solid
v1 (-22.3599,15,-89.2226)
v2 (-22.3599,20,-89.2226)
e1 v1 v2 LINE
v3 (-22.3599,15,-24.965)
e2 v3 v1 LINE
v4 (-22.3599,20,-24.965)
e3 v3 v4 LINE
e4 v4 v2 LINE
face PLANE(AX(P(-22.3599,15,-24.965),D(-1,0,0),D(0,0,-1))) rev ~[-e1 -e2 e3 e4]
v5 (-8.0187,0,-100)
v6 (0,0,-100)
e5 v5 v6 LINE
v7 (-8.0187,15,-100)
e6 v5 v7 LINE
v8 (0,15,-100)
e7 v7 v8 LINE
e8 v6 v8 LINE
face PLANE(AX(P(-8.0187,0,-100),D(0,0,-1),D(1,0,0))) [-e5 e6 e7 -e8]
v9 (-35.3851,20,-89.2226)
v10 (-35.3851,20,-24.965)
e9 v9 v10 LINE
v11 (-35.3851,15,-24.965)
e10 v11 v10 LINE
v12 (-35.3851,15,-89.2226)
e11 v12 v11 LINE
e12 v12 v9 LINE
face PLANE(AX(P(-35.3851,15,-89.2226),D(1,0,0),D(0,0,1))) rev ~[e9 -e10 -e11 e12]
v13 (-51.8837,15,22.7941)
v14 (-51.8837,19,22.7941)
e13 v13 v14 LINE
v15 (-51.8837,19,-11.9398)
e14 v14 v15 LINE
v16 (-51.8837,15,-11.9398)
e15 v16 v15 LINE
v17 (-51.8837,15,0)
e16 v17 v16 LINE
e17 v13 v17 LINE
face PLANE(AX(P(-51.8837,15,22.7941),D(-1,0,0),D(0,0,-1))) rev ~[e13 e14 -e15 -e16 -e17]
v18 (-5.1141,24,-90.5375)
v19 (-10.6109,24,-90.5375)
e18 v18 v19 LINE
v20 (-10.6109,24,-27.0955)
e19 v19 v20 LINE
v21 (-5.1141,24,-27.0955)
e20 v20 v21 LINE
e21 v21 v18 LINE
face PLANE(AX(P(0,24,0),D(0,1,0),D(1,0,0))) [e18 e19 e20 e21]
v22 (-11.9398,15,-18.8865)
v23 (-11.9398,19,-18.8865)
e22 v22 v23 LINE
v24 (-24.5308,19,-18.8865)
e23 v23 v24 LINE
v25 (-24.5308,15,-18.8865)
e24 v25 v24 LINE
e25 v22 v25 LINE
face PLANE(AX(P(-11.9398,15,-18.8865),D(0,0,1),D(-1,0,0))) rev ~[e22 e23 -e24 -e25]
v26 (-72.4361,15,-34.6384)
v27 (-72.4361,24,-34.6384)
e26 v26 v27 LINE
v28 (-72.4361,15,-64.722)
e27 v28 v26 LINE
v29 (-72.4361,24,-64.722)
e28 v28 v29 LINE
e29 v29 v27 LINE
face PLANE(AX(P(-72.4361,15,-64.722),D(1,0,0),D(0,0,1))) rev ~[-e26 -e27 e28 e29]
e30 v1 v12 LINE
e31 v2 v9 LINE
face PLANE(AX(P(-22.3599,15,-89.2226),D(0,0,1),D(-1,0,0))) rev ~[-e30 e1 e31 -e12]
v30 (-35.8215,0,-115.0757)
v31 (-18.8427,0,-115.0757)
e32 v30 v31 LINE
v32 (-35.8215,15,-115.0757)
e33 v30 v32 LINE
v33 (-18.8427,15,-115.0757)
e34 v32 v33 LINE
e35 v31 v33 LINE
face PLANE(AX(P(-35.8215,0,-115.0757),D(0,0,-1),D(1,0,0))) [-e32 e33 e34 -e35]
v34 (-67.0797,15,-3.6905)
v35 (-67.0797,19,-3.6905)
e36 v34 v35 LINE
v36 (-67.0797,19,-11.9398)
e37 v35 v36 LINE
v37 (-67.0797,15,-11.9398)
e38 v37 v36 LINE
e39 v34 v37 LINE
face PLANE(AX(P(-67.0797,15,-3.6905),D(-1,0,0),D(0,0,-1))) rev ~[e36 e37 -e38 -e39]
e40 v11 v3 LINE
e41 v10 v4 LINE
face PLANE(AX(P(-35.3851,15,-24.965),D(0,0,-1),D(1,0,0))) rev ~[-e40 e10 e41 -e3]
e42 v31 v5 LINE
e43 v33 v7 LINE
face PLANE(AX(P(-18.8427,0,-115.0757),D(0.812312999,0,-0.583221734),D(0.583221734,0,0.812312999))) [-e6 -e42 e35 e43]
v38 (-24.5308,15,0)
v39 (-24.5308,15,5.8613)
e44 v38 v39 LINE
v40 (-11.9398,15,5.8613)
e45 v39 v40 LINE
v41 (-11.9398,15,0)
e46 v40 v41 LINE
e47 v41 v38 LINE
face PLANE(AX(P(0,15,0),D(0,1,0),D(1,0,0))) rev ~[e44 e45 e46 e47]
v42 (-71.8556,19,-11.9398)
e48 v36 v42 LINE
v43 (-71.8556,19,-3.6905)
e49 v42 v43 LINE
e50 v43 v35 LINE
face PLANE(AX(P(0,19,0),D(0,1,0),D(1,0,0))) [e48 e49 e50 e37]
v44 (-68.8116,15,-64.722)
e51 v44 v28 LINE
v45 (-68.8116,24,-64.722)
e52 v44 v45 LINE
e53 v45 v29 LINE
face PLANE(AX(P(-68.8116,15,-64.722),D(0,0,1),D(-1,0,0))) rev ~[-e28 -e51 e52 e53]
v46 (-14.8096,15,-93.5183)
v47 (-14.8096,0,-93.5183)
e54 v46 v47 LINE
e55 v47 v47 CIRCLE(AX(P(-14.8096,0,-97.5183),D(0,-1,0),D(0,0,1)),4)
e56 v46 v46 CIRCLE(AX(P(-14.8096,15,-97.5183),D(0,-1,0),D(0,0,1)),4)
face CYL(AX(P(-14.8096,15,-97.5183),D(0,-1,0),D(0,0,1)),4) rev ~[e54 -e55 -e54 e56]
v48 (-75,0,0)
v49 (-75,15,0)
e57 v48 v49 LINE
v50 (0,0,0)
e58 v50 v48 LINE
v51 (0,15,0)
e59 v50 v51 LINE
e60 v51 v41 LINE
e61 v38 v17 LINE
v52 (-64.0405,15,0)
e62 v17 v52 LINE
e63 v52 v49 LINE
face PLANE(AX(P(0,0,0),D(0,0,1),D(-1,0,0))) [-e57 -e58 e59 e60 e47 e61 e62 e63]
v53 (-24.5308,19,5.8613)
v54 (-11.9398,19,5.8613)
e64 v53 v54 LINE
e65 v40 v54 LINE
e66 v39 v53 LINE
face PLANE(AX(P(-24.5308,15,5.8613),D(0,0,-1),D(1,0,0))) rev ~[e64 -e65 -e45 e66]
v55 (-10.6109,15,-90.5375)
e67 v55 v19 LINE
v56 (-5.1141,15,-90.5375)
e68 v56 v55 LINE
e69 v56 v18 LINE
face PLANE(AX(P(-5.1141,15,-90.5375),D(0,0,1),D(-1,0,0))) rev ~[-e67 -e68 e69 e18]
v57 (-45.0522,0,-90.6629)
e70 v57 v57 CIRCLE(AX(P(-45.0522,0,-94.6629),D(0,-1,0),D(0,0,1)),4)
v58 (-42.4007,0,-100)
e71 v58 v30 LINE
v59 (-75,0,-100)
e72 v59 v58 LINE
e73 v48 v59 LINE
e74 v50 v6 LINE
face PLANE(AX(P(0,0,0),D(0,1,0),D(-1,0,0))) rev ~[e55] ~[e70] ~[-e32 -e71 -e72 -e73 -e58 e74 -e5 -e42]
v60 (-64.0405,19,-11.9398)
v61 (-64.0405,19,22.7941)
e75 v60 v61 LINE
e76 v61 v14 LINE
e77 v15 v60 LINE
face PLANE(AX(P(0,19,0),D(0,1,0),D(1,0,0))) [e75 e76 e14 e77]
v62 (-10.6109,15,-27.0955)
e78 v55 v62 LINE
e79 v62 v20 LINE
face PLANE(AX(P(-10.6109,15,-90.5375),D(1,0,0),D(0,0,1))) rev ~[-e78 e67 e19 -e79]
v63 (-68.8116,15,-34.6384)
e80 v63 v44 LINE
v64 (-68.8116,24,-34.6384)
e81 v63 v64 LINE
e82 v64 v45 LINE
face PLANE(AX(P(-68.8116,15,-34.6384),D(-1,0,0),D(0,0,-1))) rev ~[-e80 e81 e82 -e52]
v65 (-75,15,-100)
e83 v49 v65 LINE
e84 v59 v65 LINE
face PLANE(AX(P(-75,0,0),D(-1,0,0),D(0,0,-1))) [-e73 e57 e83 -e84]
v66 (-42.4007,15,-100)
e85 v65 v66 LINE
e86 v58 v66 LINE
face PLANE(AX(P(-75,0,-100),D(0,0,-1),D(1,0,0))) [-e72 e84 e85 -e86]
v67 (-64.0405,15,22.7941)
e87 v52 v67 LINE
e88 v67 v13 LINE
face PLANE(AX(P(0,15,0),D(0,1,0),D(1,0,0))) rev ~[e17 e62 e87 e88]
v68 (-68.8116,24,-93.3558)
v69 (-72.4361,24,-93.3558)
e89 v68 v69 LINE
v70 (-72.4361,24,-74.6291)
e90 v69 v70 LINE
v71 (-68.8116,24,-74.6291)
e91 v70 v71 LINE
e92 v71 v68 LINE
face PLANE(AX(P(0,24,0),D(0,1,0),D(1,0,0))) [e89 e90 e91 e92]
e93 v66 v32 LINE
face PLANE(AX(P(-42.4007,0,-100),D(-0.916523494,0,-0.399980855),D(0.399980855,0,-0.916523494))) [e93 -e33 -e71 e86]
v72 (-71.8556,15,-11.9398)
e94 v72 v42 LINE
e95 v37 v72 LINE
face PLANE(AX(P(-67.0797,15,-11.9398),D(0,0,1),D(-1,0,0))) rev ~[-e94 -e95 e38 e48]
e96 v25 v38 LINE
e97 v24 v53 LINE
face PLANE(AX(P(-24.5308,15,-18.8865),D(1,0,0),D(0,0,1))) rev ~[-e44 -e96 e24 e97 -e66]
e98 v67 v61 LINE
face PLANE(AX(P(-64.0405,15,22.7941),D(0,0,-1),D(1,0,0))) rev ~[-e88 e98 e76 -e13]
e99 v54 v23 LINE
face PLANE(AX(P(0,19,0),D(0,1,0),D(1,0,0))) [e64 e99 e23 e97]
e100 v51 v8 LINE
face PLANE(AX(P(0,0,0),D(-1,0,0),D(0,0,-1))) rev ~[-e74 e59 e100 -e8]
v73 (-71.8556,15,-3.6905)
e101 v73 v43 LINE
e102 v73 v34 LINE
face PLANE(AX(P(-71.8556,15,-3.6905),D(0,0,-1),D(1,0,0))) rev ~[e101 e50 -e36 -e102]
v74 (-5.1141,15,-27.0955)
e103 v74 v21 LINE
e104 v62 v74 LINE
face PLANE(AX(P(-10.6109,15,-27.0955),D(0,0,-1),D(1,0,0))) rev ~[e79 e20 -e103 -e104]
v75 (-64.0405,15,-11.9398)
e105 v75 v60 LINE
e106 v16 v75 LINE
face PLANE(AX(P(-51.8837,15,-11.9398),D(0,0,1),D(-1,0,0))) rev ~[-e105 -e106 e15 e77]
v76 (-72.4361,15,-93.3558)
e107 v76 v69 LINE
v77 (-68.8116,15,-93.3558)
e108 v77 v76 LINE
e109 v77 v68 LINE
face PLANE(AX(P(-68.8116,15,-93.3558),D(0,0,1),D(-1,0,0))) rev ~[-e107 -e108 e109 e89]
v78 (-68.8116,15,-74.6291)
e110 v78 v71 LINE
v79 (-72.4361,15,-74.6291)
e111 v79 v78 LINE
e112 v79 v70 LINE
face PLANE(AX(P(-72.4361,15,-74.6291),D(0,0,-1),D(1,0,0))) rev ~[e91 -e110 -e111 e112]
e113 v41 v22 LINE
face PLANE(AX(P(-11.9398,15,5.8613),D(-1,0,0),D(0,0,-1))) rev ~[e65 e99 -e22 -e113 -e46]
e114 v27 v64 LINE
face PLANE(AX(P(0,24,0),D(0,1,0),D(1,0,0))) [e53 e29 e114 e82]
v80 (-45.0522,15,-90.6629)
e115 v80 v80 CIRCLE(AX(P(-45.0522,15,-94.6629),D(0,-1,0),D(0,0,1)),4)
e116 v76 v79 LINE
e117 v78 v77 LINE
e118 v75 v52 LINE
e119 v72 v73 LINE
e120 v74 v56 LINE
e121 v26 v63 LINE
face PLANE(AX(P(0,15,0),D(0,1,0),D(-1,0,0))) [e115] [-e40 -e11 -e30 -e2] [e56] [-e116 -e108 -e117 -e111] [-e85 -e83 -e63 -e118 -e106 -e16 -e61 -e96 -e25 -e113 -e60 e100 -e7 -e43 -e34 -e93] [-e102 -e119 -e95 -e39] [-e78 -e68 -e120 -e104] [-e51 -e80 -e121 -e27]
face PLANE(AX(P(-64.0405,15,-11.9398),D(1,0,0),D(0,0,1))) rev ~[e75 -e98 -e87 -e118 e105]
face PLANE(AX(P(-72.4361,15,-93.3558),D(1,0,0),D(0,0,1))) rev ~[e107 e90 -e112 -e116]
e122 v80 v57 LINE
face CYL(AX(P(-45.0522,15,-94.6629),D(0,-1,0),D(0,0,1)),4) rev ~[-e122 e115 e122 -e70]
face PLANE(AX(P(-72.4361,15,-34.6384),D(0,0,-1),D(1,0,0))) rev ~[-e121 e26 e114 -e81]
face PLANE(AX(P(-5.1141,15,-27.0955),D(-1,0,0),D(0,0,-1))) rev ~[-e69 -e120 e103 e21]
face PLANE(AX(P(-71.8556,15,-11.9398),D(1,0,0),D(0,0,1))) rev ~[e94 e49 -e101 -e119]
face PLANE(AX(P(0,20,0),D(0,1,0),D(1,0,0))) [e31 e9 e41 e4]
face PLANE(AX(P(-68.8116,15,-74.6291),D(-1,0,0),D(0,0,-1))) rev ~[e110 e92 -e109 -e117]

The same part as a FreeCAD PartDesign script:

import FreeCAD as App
import Part
import Sketcher
from FreeCAD import Vector
Q = App.Units.Quantity


def add_polygon(sketch, points):
    """Adds a closed chain of lines whose ends are joined by coincident constraints."""
    first, n = sketch.GeometryCount, len(points)
    for a, b in zip(points, points[1:] + points[:1]):
        sketch.addGeometry(Part.LineSegment(App.Vector(*a, 0), App.Vector(*b, 0)), False)
    for i in range(n):
        sketch.addConstraint(Sketcher.Constraint("Coincident", first + i, 2, first + (i + 1) % n, 1))

doc = App.newDocument("Part")
body = doc.addObject("PartDesign::Body", "Body")

# Sketch on XZ plane
sketch1 = body.newObject("Sketcher::SketchObject", "Sketch")
sketch1.AttachmentSupport = (doc.getObject("XZ_Plane"), [""])
sketch1.MapMode = "FlatFace"
add_polygon(sketch1, [(-75, 0), (0, 0), (0, -100), (-8, -100), (-19, -115), (-36, -115), (-42, -100), (-75, -100)])  # lines 0-7
sketch1.addConstraint(Sketcher.Constraint("Horizontal", 0))
sketch1.addConstraint(Sketcher.Constraint("Vertical", 1))
sketch1.addConstraint(Sketcher.Constraint("Horizontal", 2))
sketch1.addConstraint(Sketcher.Constraint("Horizontal", 4))
sketch1.addConstraint(Sketcher.Constraint("Horizontal", 6))
sketch1.addConstraint(Sketcher.Constraint("Vertical", 7))
sketch1.addConstraint(Sketcher.Constraint("Coincident", 0, 2, -1, 1))
sketch1.addConstraint(Sketcher.Constraint("Horizontal", 2, 2, 5, 2))
sketch1.addConstraint(Sketcher.Constraint("DistanceX", 0, 1, 0, 2, Q("75 mm")))
sketch1.addConstraint(Sketcher.Constraint("DistanceY", 1, 2, 1, 1, Q("100 mm")))
sketch1.addConstraint(Sketcher.Constraint("Distance", 3, Q("18.559 mm")))
sketch1.addConstraint(Sketcher.Constraint("DistanceX", 2, 2, 2, 1, Q("8.0187 mm")))
sketch1.addConstraint(Sketcher.Constraint("DistanceX", 4, 2, 4, 1, Q("16.9788 mm")))
sketch1.addConstraint(Sketcher.Constraint("DistanceX", 6, 2, 6, 1, Q("32.5993 mm")))
sketch1.addConstraint(Sketcher.Constraint("DistanceX", 3, 2, 2, 2, Q("10.824 mm")))
pad1 = body.newObject("PartDesign::Pad", "Pad")
pad1.Profile = sketch1
pad1.Length = 15
pad1.Reversed = True

# Sketch on XZ plane
sketch2 = body.newObject("Sketcher::SketchObject", "Sketch001")
sketch2.AttachmentSupport = (doc.getObject("XZ_Plane"), [""])
sketch2.MapMode = "FlatFace"
sketch2.AttachmentOffset = App.Placement(Vector(0, 0, -15), App.Rotation())
add_polygon(sketch2, [(-72.4, -64.7), (-72.4, -34.6), (-68.8, -34.6), (-68.8, -64.7)])  # lines 0-3
add_polygon(sketch2, [(-72.4, -93.4), (-72.4, -74.6), (-68.8, -74.6), (-68.8, -93.4)])  # lines 4-7
sketch2.addConstraint(Sketcher.Constraint("Vertical", 0))
sketch2.addConstraint(Sketcher.Constraint("Horizontal", 1))
sketch2.addConstraint(Sketcher.Constraint("Vertical", 2))
sketch2.addConstraint(Sketcher.Constraint("Horizontal", 3))
sketch2.addConstraint(Sketcher.Constraint("Vertical", 4))
sketch2.addConstraint(Sketcher.Constraint("Horizontal", 5))
sketch2.addConstraint(Sketcher.Constraint("Vertical", 6))
sketch2.addConstraint(Sketcher.Constraint("Horizontal", 7))
sketch2.addConstraint(Sketcher.Constraint("Vertical", 3, 2, 4, 2))
sketch2.addConstraint(Sketcher.Constraint("Vertical", 2, 2, 5, 2))
sketch2.addConstraint(Sketcher.Constraint("DistanceX", 1, 1, 1, 2, Q("3.6245 mm")))
sketch2.addConstraint(Sketcher.Constraint("DistanceY", 0, 1, 0, 2, Q("30.0836 mm")))
sketch2.addConstraint(Sketcher.Constraint("DistanceY", 4, 1, 4, 2, Q("18.7267 mm")))
sketch2.addConstraint(Sketcher.Constraint("DistanceX", 0, 2, -1, 1, Q("72.436 mm")))
sketch2.addConstraint(Sketcher.Constraint("DistanceY", 2, 2, -1, 1, Q("64.722 mm")))
sketch2.addConstraint(Sketcher.Constraint("DistanceY", 4, 2, -1, 1, Q("74.629 mm")))
pad2 = body.newObject("PartDesign::Pad", "Pad001")
pad2.Profile = sketch2
pad2.Length = 9
pad2.Reversed = True

# Sketch on XZ plane
sketch3 = body.newObject("Sketcher::SketchObject", "Sketch002")
sketch3.AttachmentSupport = (doc.getObject("XZ_Plane"), [""])
sketch3.MapMode = "FlatFace"
sketch3.AttachmentOffset = App.Placement(Vector(0, 0, -15), App.Rotation())
add_polygon(sketch3, [(-11, -91), (-11, -27), (-5, -27), (-5, -91)])  # lines 0-3
sketch3.addConstraint(Sketcher.Constraint("Vertical", 0))
sketch3.addConstraint(Sketcher.Constraint("Horizontal", 1))
sketch3.addConstraint(Sketcher.Constraint("Vertical", 2))
sketch3.addConstraint(Sketcher.Constraint("Horizontal", 3))
sketch3.addConstraint(Sketcher.Constraint("DistanceY", 0, 1, 0, 2, Q("63.442 mm")))
sketch3.addConstraint(Sketcher.Constraint("DistanceX", 1, 1, 1, 2, Q("5.4968 mm")))
sketch3.addConstraint(Sketcher.Constraint("DistanceX", 0, 2, -1, 1, Q("10.611 mm")))
sketch3.addConstraint(Sketcher.Constraint("DistanceY", 0, 2, -1, 1, Q("27.0955 mm")))
pad3 = body.newObject("PartDesign::Pad", "Pad002")
pad3.Profile = sketch3
pad3.Length = 9
pad3.Reversed = True

# Sketch on XZ plane
sketch4 = body.newObject("Sketcher::SketchObject", "Sketch003")
sketch4.AttachmentSupport = (doc.getObject("XZ_Plane"), [""])
sketch4.MapMode = "FlatFace"
sketch4.AttachmentOffset = App.Placement(Vector(0, 0, -15), App.Rotation())
add_polygon(sketch4, [(-24.5, -18.9), (-24.5, 5.9), (-11.9, 5.9), (-11.9, -18.9)])  # lines 0-3
add_polygon(sketch4, [(-64, -11.9), (-64, 22.8), (-51.9, 22.8), (-51.9, -11.9)])  # lines 4-7
add_polygon(sketch4, [(-71.9, -11.9), (-71.9, -3.7), (-67.1, -3.7), (-67.1, -11.9)])  # lines 8-11
sketch4.addConstraint(Sketcher.Constraint("Vertical", 0))
sketch4.addConstraint(Sketcher.Constraint("Horizontal", 1))
sketch4.addConstraint(Sketcher.Constraint("Vertical", 2))
sketch4.addConstraint(Sketcher.Constraint("Horizontal", 3))
sketch4.addConstraint(Sketcher.Constraint("Vertical", 4))
sketch4.addConstraint(Sketcher.Constraint("Horizontal", 5))
sketch4.addConstraint(Sketcher.Constraint("Vertical", 6))
sketch4.addConstraint(Sketcher.Constraint("Horizontal", 7))
sketch4.addConstraint(Sketcher.Constraint("Vertical", 8))
sketch4.addConstraint(Sketcher.Constraint("Horizontal", 9))
sketch4.addConstraint(Sketcher.Constraint("Vertical", 10))
sketch4.addConstraint(Sketcher.Constraint("Horizontal", 11))
sketch4.addConstraint(Sketcher.Constraint("Horizontal", 7, 2, 10, 2))
sketch4.addConstraint(Sketcher.Constraint("DistanceX", 1, 1, 1, 2, Q("12.591 mm")))
sketch4.addConstraint(Sketcher.Constraint("DistanceX", 9, 1, 9, 2, Q("4.776 mm")))
sketch4.addConstraint(Sketcher.Constraint("DistanceY", 4, 1, 4, 2, Q("34.734 mm")))
sketch4.addConstraint(Sketcher.Constraint("DistanceX", 5, 1, 5, 2, Q("12.1568 mm")))
sketch4.addConstraint(Sketcher.Constraint("DistanceY", 0, 1, 0, 2, Q("24.7478 mm")))
sketch4.addConstraint(Sketcher.Constraint("DistanceY", 8, 1, 8, 2, Q("8.2493 mm")))
sketch4.addConstraint(Sketcher.Constraint("DistanceY", -1, 1, 4, 2, Q("22.794 mm")))
sketch4.addConstraint(Sketcher.Constraint("DistanceX", 5, 2, 0, 2, Q("27.353 mm")))
sketch4.addConstraint(Sketcher.Constraint("DistanceY", 6, 2, 0, 2, Q("17.801 mm")))
sketch4.addConstraint(Sketcher.Constraint("DistanceX", 8, 2, 7, 2, Q("7.815 mm")))
sketch4.addConstraint(Sketcher.Constraint("DistanceX", 0, 2, -1, 1, Q("24.5308 mm")))
pad4 = body.newObject("PartDesign::Pad", "Pad003")
pad4.Profile = sketch4
pad4.Length = 4
pad4.Reversed = True

# Sketch on XZ plane
sketch5 = body.newObject("Sketcher::SketchObject", "Sketch004")
sketch5.AttachmentSupport = (doc.getObject("XZ_Plane"), [""])
sketch5.MapMode = "FlatFace"
sketch5.AttachmentOffset = App.Placement(Vector(0, 0, -15), App.Rotation())
add_polygon(sketch5, [(-35, -89), (-35, -25), (-22, -25), (-22, -89)])  # lines 0-3
sketch5.addConstraint(Sketcher.Constraint("Vertical", 0))
sketch5.addConstraint(Sketcher.Constraint("Horizontal", 1))
sketch5.addConstraint(Sketcher.Constraint("Vertical", 2))
sketch5.addConstraint(Sketcher.Constraint("Horizontal", 3))
sketch5.addConstraint(Sketcher.Constraint("DistanceX", 1, 2, -1, 1, Q("22.36 mm")))
sketch5.addConstraint(Sketcher.Constraint("DistanceX", 1, 1, 1, 2, Q("13.0252 mm")))
sketch5.addConstraint(Sketcher.Constraint("DistanceY", 0, 1, 0, 2, Q("64.2576 mm")))
sketch5.addConstraint(Sketcher.Constraint("DistanceY", 0, 2, -1, 1, Q("24.965 mm")))
pad5 = body.newObject("PartDesign::Pad", "Pad004")
pad5.Profile = sketch5
pad5.Length = 5
pad5.Reversed = True

# Sketch on XZ plane
sketch6 = body.newObject("Sketcher::SketchObject", "Sketch005")
sketch6.AttachmentSupport = (doc.getObject("XZ_Plane"), [""])
sketch6.MapMode = "FlatFace"
sketch6.AttachmentOffset = App.Placement(Vector(0, 0, -15), App.Rotation())
sketch6.addGeometry(Part.Circle(Vector(-14.8, -97.5, 0), Vector(0, 0, 1), 4), False)
sketch6.addGeometry(Part.Circle(Vector(-45.1, -94.7, 0), Vector(0, 0, 1), 4), False)
sketch6.addConstraint(Sketcher.Constraint("Equal", 0, 1))
sketch6.addConstraint(Sketcher.Constraint("Diameter", 0, Q("8 mm")))
sketch6.addConstraint(Sketcher.Constraint("DistanceY", 1, 3, -1, 1, Q("94.663 mm")))
sketch6.addConstraint(Sketcher.Constraint("DistanceX", 0, 3, -1, 1, Q("14.8096 mm")))
sketch6.addConstraint(Sketcher.Constraint("DistanceY", 0, 3, -1, 1, Q("97.5183 mm")))
sketch6.addConstraint(Sketcher.Constraint("DistanceX", 1, 3, -1, 1, Q("45.0522 mm")))
doc.recompute()
hole = body.newObject("PartDesign::Hole", "Hole")
hole.Profile = sketch6
hole.ThreadType = "None"
hole.Diameter = 8
hole.DepthType = "ThroughAll"
hole.Reversed = True

doc.recompute()
